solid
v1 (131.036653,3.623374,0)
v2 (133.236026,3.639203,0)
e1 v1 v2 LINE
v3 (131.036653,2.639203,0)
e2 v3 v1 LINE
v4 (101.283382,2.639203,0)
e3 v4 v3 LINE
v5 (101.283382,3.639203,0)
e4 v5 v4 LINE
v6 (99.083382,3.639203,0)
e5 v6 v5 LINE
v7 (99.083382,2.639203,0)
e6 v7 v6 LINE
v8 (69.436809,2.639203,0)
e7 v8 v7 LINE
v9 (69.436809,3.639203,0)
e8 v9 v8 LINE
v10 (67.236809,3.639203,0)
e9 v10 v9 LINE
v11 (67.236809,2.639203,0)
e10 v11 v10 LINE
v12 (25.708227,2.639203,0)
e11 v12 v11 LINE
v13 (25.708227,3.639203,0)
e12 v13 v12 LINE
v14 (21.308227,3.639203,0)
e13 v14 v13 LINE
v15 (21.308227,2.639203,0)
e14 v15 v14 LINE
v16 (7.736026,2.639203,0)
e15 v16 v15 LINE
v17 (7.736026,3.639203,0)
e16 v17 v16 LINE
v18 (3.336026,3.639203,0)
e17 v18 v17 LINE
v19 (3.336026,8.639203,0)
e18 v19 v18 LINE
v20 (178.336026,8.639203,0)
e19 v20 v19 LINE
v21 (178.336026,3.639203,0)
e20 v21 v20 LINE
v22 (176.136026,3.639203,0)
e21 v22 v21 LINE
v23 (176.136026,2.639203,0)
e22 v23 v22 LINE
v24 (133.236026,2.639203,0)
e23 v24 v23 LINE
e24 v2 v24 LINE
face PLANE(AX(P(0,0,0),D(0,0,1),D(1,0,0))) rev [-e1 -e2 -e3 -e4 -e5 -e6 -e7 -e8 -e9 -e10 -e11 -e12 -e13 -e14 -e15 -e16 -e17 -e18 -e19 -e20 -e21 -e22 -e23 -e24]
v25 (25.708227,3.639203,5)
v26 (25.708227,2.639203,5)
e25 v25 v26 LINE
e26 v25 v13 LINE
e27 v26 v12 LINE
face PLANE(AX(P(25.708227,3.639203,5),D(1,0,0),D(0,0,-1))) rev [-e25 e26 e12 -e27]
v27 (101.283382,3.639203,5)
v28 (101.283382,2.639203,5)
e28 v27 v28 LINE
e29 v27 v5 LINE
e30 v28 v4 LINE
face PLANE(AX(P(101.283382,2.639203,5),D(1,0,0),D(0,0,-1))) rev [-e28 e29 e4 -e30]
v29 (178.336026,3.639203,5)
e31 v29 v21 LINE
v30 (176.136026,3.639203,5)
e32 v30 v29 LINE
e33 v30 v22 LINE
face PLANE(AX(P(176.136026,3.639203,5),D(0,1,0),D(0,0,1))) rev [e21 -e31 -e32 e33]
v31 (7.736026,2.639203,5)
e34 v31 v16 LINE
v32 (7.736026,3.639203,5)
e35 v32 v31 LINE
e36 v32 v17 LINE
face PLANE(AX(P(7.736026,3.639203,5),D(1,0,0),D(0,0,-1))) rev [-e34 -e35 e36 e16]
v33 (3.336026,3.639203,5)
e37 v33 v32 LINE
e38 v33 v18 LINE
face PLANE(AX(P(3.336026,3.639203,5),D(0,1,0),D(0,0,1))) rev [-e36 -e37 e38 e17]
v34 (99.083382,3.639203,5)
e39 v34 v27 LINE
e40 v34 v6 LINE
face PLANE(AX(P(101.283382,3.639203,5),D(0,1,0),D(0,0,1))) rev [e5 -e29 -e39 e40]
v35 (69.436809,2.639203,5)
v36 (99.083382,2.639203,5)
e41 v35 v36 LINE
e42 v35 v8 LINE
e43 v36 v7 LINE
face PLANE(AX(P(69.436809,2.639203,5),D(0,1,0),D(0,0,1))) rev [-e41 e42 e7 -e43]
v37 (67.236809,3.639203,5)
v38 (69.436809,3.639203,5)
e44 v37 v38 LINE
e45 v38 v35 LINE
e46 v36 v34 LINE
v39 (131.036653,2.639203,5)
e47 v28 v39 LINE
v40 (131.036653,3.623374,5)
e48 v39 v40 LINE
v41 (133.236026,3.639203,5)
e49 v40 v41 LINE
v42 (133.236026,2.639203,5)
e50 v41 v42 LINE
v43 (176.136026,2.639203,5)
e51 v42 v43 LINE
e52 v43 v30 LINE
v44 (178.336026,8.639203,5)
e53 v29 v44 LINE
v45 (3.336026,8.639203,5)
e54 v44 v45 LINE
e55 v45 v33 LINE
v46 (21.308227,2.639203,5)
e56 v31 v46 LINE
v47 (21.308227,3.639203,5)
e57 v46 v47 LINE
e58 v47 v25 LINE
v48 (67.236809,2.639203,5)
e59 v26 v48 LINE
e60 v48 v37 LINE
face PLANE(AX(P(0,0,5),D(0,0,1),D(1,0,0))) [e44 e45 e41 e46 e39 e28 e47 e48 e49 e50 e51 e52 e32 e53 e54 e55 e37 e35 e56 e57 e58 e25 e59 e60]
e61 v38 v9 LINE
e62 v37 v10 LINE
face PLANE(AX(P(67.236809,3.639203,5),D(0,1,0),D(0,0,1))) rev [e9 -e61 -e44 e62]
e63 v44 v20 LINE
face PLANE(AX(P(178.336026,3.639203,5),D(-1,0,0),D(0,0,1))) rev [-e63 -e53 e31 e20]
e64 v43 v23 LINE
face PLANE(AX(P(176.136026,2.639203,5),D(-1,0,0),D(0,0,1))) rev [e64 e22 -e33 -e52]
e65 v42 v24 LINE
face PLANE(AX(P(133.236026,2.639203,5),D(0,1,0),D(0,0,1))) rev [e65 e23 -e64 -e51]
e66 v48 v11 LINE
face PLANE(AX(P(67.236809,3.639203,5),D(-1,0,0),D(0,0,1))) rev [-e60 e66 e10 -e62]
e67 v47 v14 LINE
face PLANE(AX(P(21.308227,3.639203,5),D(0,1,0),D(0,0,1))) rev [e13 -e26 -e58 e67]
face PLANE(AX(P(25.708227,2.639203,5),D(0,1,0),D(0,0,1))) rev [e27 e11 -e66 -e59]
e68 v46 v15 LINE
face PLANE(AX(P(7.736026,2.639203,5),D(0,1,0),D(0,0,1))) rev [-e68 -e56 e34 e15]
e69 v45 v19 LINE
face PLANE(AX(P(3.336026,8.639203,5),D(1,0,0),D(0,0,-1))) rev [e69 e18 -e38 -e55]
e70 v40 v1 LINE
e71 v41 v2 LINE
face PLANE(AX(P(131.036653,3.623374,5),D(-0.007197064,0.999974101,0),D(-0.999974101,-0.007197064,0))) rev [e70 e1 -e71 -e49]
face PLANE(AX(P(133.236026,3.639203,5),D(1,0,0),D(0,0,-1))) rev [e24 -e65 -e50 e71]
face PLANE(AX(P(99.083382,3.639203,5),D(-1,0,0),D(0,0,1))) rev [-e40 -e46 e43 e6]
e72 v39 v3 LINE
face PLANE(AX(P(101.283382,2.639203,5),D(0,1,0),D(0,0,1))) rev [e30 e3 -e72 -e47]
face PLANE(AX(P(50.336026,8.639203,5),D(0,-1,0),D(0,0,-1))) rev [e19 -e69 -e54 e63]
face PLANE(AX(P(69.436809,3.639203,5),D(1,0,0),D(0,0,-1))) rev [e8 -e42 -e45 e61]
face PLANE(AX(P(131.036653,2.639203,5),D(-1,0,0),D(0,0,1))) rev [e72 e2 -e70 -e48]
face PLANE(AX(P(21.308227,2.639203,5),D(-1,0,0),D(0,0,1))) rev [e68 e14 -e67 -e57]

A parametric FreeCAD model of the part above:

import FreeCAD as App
import Part
import Sketcher

V = App.Vector


def add_polygon(sketch, points):
    """Adds a closed chain of lines whose ends are joined by coincident constraints."""
    first, n = sketch.GeometryCount, len(points)
    for a, b in zip(points, points[1:] + points[:1]):
        sketch.addGeometry(Part.LineSegment(App.Vector(*a, 0), App.Vector(*b, 0)), False)
    for i in range(n):
        sketch.addConstraint(Sketcher.Constraint("Coincident", first + i, 2, first + (i + 1) % n, 1))

doc = App.newDocument("Part")
body = doc.addObject("PartDesign::Body", "Body")

# Sketch on XY plane
sketch1 = doc.addObject("Sketcher::SketchObject", "Sketch")
body.addObject(sketch1)
sketch1.AttachmentSupport = (doc.XY_Plane, [""])
sketch1.MapMode = "FlatFace"
add_polygon(sketch1, [(67.236809, 3.639203), (69.436809, 3.639203), (69.436809, 2.639203), (99.083382, 2.639203), (99.083382, 3.639203), (101.283382, 3.639203), (101.283382, 2.639203), (131.036653, 2.639203), (131.036653, 3.623374), (133.236026, 3.639203), (133.236026, 2.639203), (176.136026, 2.639203), (176.136026, 3.639203), (178.336026, 3.639203), (178.336026, 8.639203), (3.336026, 8.639203), (3.336026, 3.639203), (7.736026, 3.639203), (7.736026, 2.639203), (21.308227, 2.639203), (21.308227, 3.639203), (25.708227, 3.639203), (25.708227, 2.639203), (67.236809, 2.639203)])  # lines 0-23
sketch1.addConstraint(Sketcher.Constraint("Horizontal", 0))
sketch1.addConstraint(Sketcher.Constraint("Vertical", 1))
sketch1.addConstraint(Sketcher.Constraint("Horizontal", 2))
sketch1.addConstraint(Sketcher.Constraint("Vertical", 3))
sketch1.addConstraint(Sketcher.Constraint("Horizontal", 4))
sketch1.addConstraint(Sketcher.Constraint("Vertical", 5))
sketch1.addConstraint(Sketcher.Constraint("Horizontal", 6))
sketch1.addConstraint(Sketcher.Constraint("Vertical", 7))
sketch1.addConstraint(Sketcher.Constraint("Vertical", 9))
sketch1.addConstraint(Sketcher.Constraint("Horizontal", 10))
sketch1.addConstraint(Sketcher.Constraint("Vertical", 11))
sketch1.addConstraint(Sketcher.Constraint("Horizontal", 12))
sketch1.addConstraint(Sketcher.Constraint("Vertical", 13))
sketch1.addConstraint(Sketcher.Constraint("Horizontal", 14))
sketch1.addConstraint(Sketcher.Constraint("Vertical", 15))
sketch1.addConstraint(Sketcher.Constraint("Horizontal", 16))
sketch1.addConstraint(Sketcher.Constraint("Vertical", 17))
sketch1.addConstraint(Sketcher.Constraint("Horizontal", 18))
sketch1.addConstraint(Sketcher.Constraint("Vertical", 19))
sketch1.addConstraint(Sketcher.Constraint("Horizontal", 20))
sketch1.addConstraint(Sketcher.Constraint("Vertical", 21))
sketch1.addConstraint(Sketcher.Constraint("Horizontal", 22))
sketch1.addConstraint(Sketcher.Constraint("Vertical", 23))
sketch1.addConstraint(Sketcher.Constraint("Horizontal", 0, 2, 3, 2))
sketch1.addConstraint(Sketcher.Constraint("Horizontal", 2, 2, 5, 2))
sketch1.addConstraint(Sketcher.Constraint("Horizontal", 4, 2, 8, 2))
sketch1.addConstraint(Sketcher.Constraint("Horizontal", 6, 2, 9, 2))
sketch1.addConstraint(Sketcher.Constraint("Horizontal", 8, 2, 11, 2))
sketch1.addConstraint(Sketcher.Constraint("Horizontal", 12, 2, 15, 2))
sketch1.addConstraint(Sketcher.Constraint("Horizontal", 10, 2, 17, 2))
sketch1.addConstraint(Sketcher.Constraint("Horizontal", 16, 2, 19, 2))
sketch1.addConstraint(Sketcher.Constraint("Horizontal", 18, 2, 21, 2))
sketch1.addConstraint(Sketcher.Constraint("Equal", 0, 4))
sketch1.addConstraint(Sketcher.Constraint("Equal", 4, 12))
sketch1.addConstraint(Sketcher.Constraint("Equal", 16, 20))
sketch1.addConstraint(Sketcher.Constraint("DistanceX", 14, 2, 14, 1, 175.0))
sketch1.addConstraint(Sketcher.Constraint("DistanceY", 1, 2, 1, 1, 1.0))
sketch1.addConstraint(Sketcher.Constraint("DistanceY", 13, 1, 13, 2, 5.0))
sketch1.addConstraint(Sketcher.Constraint("DistanceX", 0, 1, 0, 2, 2.2))
sketch1.addConstraint(Sketcher.Constraint("DistanceX", 10, 1, 10, 2, 42.9))
sketch1.addConstraint(Sketcher.Constraint("DistanceX", 16, 1, 16, 2, 4.4))
sketch1.addConstraint(Sketcher.Constraint("DistanceX", 18, 1, 18, 2, 13.572201))
sketch1.addConstraint(Sketcher.Constraint("DistanceX", 6, 1, 6, 2, 29.753271))
sketch1.addConstraint(Sketcher.Constraint("DistanceY", 7, 1, 7, 2, 0.984171))
sketch1.addConstraint(Sketcher.Constraint("Distance", 8, 2.19943))
sketch1.addConstraint(Sketcher.Constraint("DistanceX", 2, 1, 2, 2, 29.646573))
sketch1.addConstraint(Sketcher.Constraint("DistanceX", -1, 1, 0, 2, 69.436809))
sketch1.addConstraint(Sketcher.Constraint("DistanceY", -1, 1, 0, 2, 3.639203))
pad1 = doc.addObject("PartDesign::Pad", "Pad")
body.addObject(pad1)
pad1.Profile = sketch1
pad1.Length = 5

doc.recompute()
